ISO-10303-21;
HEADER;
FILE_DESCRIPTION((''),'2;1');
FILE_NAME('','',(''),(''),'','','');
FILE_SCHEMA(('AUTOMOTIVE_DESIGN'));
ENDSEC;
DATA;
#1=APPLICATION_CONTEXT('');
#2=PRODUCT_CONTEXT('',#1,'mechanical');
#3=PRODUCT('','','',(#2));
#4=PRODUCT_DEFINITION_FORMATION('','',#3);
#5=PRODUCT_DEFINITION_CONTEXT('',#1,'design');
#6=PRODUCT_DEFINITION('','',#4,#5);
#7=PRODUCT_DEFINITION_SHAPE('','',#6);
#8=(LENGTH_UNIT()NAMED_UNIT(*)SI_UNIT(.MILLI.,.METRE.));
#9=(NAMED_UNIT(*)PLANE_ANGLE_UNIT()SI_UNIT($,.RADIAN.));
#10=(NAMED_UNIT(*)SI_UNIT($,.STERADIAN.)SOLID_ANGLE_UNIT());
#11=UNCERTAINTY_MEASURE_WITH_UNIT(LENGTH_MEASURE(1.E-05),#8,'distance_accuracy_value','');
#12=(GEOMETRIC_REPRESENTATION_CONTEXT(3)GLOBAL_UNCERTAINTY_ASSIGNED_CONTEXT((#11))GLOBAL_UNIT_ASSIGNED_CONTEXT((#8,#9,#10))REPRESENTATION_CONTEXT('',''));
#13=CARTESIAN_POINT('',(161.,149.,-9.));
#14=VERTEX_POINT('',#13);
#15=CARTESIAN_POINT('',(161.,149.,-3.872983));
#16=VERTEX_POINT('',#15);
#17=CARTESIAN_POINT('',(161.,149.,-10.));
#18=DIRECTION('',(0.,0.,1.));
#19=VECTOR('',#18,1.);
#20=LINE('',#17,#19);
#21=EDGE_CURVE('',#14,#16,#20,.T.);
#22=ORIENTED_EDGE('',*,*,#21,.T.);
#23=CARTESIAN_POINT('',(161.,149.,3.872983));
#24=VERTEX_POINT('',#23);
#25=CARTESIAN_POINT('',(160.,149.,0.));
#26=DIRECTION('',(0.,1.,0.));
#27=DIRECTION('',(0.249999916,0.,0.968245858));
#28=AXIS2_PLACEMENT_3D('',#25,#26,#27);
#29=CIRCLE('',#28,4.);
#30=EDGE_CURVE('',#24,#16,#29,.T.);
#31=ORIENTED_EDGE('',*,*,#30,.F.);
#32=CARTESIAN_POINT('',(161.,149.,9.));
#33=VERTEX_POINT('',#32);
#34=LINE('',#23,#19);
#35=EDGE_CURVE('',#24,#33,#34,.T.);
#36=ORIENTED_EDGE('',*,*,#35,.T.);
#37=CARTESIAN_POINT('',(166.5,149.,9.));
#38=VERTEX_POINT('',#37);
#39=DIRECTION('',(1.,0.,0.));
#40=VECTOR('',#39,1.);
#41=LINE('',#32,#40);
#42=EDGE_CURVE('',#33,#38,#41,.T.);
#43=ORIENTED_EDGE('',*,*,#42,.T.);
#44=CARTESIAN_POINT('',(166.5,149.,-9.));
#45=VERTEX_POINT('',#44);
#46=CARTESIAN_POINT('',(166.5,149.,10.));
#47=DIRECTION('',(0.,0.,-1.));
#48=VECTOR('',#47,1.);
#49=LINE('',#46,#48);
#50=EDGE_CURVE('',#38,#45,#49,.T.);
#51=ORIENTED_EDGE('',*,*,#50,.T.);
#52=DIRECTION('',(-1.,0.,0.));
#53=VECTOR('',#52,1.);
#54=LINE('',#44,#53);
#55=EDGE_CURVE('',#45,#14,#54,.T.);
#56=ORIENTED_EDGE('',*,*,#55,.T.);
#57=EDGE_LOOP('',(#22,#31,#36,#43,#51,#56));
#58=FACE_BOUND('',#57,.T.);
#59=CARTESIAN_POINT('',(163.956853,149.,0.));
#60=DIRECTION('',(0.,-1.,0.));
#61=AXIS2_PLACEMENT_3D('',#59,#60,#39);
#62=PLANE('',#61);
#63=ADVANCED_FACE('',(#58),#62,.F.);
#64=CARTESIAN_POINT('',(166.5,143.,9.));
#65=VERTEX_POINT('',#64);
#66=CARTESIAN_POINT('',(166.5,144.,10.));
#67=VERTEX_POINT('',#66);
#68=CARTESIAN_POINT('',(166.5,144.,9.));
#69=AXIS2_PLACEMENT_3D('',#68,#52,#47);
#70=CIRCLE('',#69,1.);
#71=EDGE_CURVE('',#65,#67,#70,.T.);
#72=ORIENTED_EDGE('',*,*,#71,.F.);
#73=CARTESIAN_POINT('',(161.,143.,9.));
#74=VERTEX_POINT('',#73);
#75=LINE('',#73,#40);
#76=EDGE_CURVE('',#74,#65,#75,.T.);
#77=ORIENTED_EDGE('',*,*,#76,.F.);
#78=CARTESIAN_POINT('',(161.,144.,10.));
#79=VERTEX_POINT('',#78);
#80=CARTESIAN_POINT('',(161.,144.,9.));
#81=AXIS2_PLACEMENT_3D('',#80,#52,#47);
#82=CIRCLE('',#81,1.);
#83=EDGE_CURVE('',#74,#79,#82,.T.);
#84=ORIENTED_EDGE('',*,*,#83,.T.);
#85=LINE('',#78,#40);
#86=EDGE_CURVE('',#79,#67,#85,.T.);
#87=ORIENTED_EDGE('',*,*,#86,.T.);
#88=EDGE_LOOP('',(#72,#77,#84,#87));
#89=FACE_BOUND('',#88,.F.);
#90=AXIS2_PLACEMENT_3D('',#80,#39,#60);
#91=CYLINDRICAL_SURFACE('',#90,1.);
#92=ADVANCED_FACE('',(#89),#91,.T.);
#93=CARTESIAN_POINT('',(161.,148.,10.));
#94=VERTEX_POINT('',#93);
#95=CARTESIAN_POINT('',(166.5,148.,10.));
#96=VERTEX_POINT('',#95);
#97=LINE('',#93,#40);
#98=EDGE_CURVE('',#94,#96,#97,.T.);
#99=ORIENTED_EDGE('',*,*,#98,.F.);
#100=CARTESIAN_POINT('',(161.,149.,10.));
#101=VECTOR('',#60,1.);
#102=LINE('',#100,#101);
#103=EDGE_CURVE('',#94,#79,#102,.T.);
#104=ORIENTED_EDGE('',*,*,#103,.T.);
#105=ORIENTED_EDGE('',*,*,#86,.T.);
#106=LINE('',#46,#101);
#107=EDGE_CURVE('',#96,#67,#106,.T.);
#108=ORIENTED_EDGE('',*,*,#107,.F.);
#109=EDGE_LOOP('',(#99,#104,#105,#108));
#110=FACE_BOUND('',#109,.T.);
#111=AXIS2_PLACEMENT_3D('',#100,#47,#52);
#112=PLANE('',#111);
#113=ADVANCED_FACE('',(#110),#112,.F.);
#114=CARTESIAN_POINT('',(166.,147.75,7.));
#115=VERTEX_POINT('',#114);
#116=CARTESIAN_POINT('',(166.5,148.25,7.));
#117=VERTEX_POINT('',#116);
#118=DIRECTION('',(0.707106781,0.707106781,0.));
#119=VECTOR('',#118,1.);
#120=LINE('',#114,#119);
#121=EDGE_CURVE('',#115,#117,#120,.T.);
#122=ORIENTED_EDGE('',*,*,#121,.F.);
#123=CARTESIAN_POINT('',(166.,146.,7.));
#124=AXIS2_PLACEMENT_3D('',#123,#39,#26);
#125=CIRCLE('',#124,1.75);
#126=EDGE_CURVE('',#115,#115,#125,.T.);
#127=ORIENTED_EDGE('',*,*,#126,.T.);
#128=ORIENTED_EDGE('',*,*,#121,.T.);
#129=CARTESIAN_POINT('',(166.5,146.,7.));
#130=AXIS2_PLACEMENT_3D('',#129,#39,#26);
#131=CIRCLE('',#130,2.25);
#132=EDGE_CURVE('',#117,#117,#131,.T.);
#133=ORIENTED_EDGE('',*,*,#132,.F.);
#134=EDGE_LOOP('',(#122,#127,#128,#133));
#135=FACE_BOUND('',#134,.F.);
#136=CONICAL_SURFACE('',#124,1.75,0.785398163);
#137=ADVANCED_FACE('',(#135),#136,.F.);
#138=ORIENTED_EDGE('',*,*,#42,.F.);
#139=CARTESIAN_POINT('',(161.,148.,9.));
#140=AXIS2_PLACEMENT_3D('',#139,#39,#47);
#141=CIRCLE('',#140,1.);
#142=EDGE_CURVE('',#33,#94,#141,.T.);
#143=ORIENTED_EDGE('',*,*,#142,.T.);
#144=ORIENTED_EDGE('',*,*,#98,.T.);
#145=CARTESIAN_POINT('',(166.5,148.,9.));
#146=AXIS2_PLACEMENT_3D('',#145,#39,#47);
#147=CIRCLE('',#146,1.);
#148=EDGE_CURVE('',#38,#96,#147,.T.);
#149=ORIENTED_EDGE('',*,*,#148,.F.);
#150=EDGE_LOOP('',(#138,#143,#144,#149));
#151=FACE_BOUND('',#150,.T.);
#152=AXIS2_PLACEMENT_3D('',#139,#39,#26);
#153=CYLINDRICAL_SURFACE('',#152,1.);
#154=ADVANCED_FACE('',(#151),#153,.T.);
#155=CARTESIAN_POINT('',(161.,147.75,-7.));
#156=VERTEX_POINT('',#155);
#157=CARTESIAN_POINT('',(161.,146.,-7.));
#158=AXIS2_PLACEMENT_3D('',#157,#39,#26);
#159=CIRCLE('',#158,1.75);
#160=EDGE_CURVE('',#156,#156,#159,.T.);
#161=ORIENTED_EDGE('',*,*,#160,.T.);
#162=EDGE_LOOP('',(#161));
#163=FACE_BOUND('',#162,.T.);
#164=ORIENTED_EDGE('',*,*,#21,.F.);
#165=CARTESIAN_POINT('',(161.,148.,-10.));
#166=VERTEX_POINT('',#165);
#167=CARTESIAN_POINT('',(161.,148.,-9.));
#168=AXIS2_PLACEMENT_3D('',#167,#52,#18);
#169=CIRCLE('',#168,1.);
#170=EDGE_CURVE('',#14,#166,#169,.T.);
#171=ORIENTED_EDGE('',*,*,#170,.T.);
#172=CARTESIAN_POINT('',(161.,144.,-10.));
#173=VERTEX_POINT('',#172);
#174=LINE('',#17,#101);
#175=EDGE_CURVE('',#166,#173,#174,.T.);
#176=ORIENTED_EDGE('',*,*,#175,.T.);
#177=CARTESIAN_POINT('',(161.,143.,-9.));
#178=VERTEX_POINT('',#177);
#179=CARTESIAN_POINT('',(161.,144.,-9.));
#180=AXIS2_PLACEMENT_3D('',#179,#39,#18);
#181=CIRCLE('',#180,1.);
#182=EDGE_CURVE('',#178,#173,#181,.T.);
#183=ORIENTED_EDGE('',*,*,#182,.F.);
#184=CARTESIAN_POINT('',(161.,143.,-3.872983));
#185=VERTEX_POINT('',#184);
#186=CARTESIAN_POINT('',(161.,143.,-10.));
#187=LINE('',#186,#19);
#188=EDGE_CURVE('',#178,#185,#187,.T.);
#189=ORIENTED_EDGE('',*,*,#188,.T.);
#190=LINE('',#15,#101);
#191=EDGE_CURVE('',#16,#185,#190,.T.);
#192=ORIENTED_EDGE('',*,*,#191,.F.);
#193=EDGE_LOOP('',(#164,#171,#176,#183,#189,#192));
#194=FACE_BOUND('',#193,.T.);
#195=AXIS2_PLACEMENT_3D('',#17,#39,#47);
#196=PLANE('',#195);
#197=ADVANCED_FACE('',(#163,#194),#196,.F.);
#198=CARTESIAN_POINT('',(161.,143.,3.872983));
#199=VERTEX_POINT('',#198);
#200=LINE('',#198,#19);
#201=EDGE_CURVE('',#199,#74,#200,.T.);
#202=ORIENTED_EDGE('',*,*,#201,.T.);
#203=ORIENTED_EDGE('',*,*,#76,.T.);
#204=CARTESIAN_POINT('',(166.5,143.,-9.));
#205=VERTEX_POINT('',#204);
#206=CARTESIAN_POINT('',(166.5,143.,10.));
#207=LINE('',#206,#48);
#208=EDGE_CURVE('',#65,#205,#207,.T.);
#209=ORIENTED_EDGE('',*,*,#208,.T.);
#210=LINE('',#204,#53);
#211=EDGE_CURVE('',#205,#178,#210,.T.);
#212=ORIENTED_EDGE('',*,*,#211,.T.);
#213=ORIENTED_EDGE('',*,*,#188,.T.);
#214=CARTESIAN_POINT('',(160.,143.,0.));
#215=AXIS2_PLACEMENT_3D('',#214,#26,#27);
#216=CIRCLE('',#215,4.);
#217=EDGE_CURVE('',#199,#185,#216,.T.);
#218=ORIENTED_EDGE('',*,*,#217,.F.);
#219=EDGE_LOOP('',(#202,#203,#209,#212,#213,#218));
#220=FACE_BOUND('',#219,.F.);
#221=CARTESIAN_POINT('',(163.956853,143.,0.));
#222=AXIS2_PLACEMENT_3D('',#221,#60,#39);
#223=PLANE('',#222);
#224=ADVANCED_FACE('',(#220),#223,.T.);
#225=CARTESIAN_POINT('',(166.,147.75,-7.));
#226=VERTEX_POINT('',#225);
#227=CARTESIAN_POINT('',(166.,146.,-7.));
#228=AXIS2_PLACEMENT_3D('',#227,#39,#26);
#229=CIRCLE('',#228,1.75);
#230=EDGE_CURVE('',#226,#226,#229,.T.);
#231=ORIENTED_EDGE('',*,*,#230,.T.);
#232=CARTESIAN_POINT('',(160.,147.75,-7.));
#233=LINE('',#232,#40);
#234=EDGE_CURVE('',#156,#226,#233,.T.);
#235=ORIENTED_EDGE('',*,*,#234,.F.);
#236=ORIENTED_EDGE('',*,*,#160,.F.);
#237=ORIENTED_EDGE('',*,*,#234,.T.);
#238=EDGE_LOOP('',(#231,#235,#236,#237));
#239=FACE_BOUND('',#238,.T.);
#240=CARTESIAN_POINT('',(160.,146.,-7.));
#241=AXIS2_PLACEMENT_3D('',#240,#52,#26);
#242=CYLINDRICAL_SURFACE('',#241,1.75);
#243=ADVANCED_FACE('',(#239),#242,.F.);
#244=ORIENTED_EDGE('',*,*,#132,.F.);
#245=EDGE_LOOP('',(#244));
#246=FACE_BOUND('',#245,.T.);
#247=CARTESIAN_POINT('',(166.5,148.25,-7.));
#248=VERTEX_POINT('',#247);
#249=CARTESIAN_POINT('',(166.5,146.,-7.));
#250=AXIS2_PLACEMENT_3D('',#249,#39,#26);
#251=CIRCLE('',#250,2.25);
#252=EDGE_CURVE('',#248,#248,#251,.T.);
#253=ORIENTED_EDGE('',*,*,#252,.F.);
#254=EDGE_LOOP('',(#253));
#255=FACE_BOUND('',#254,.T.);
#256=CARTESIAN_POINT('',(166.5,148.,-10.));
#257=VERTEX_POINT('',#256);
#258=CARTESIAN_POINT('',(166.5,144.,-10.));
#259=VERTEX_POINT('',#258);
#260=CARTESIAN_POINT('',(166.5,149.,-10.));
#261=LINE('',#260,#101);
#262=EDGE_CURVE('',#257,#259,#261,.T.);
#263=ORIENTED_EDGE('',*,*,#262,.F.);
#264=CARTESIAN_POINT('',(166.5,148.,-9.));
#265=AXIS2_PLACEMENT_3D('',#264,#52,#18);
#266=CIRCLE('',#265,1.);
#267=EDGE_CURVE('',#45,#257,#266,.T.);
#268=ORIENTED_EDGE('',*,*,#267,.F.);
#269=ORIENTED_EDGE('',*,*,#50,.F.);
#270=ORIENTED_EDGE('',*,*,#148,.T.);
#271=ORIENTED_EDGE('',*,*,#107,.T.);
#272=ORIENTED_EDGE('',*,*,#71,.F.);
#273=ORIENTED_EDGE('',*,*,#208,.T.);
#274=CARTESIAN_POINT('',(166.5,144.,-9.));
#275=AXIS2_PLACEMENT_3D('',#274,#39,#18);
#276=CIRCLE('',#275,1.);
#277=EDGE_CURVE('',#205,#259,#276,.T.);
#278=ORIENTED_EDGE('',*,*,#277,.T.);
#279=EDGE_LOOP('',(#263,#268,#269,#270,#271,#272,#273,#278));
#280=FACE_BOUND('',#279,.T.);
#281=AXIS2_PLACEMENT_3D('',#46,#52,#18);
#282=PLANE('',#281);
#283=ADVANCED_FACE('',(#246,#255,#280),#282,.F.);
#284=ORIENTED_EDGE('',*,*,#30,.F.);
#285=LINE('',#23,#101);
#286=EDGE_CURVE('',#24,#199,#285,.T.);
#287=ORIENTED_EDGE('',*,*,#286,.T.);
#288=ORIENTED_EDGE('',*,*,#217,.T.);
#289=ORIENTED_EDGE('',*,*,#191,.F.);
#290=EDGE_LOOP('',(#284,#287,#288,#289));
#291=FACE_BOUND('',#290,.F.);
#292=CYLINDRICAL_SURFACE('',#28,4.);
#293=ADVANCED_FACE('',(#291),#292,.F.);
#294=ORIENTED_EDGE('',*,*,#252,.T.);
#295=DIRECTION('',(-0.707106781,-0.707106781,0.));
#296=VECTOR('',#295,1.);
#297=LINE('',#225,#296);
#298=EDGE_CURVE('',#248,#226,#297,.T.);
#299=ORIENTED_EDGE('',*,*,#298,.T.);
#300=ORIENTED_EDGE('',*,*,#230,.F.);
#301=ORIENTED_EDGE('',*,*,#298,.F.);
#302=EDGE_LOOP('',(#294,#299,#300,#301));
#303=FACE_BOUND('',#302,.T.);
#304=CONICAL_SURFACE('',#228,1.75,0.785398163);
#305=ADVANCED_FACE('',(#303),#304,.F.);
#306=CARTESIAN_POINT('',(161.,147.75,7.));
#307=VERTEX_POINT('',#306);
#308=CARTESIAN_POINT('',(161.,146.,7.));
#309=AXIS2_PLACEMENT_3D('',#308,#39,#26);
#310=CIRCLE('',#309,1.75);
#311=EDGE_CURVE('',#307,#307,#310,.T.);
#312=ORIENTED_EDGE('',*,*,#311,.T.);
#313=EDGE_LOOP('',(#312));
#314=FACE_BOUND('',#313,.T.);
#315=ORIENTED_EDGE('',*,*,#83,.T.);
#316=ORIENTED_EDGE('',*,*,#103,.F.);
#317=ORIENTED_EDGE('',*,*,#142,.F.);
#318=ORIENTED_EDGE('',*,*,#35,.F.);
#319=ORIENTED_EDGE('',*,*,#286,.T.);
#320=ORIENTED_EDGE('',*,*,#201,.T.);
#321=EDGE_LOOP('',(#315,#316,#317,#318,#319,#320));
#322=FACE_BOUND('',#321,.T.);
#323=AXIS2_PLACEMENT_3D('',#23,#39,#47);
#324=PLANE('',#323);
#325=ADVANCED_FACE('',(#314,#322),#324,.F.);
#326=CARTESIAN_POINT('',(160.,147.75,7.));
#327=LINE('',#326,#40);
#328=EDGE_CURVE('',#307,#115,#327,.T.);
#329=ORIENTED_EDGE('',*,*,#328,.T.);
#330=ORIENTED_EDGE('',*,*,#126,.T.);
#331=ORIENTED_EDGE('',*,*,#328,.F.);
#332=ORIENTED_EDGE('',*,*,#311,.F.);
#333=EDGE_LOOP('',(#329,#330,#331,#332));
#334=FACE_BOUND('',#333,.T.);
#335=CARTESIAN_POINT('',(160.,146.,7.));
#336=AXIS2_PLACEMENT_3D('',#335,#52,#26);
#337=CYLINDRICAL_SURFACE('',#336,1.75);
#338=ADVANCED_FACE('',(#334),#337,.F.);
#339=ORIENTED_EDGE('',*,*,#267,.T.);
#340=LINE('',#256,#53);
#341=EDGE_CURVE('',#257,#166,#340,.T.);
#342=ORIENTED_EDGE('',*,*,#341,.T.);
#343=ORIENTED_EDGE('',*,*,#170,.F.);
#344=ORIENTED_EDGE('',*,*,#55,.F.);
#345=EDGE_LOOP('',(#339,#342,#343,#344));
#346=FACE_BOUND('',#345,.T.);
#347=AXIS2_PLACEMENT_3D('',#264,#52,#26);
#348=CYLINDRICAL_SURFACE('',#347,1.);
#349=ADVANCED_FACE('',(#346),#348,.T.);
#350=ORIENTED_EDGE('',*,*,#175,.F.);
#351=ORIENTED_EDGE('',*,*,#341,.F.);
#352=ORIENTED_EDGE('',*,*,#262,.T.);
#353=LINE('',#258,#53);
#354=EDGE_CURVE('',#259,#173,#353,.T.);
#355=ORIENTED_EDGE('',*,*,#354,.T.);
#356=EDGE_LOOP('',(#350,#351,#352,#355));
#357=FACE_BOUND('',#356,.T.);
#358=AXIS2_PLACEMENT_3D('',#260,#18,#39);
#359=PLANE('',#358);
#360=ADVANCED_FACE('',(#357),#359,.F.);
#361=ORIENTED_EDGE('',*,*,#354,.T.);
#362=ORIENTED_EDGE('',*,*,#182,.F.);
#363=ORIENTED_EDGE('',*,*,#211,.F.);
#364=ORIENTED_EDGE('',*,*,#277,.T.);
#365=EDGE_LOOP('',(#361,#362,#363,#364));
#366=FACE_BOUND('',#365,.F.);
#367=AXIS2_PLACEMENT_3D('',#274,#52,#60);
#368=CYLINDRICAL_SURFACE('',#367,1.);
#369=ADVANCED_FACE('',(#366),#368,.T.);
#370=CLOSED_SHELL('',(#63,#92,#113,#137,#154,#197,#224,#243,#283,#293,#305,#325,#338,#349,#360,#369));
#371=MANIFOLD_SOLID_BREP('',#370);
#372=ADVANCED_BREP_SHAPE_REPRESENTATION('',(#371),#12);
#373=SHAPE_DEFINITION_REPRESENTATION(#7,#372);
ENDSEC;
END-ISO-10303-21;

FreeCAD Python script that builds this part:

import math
import FreeCAD as App
import Part
import Sketcher


def edges_at(feature, points):
    """Names of the edges that pass closest to the given points."""
    edges = feature.Shape.Edges
    near = lambda p: min(range(len(edges)), key=lambda i: edges[i].distToShape(Part.Vertex(*p))[0])
    return sorted({f"Edge{near(p) + 1}" for p in points})

doc = App.newDocument("Part")
body = doc.addObject("PartDesign::Body", "Body")

# Sketch on XZ plane
sketch1 = body.newObject("Sketcher::SketchObject", "Sketch")
sketch1.AttachmentSupport = (doc.getObject("XZ_Plane"), [""])
sketch1.MapMode = "FlatFace"
sketch1.AttachmentOffset = App.Placement(App.Vector(0, 0, 1), App.Rotation())
sketch1.addGeometry([
    Part.LineSegment(App.Vector(-1, 3.872983, 0), App.Vector(-1, 10, 0)),  # 0
    Part.LineSegment(App.Vector(-1, 10, 0), App.Vector(-6.5, 10, 0)),  # 1
    Part.LineSegment(App.Vector(-6.5, 10, 0), App.Vector(-6.5, -10, 0)),  # 2
    Part.LineSegment(App.Vector(-6.5, -10, 0), App.Vector(-1, -10, 0)),  # 3
    Part.LineSegment(App.Vector(-1, -10, 0), App.Vector(-1, -3.872983, 0)),  # 4
    Part.ArcOfCircle(Part.Circle(App.Vector(0, 0, 0), App.Vector(0, 0, 1), 4), math.radians(104.477507), math.radians(255.522493)),  # 5
], False)
sketch1.addConstraint([
    Sketcher.Constraint("Coincident", 0, 2, 1, 1),
    Sketcher.Constraint("Coincident", 1, 2, 2, 1),
    Sketcher.Constraint("Coincident", 2, 2, 3, 1),
    Sketcher.Constraint("Coincident", 3, 2, 4, 1),
    Sketcher.Constraint("Coincident", 4, 2, 5, 2),
    Sketcher.Constraint("Coincident", 5, 1, 0, 1),
    Sketcher.Constraint("Vertical", 0),
    Sketcher.Constraint("Horizontal", 1),
    Sketcher.Constraint("Vertical", 2),
    Sketcher.Constraint("Horizontal", 3),
    Sketcher.Constraint("Vertical", 4),
    Sketcher.Constraint("Coincident", 5, 3, -1, 1),
    Sketcher.Constraint("Symmetric", 0, 2, 3, 2, -1),
    Sketcher.Constraint("Radius", 5, 4.0),
    Sketcher.Constraint("DistanceY", 2, 2, 2, 1, 20.0),
    Sketcher.Constraint("DistanceX", 1, 2, 1, 1, 5.5),
    Sketcher.Constraint("DistanceX", 0, 2, -1, 1, 1.0),
])
pad1 = body.newObject("PartDesign::Pad", "Pad")
pad1.Profile = sketch1
pad1.Length = 6

# Sketch on YZ plane
sketch2 = body.newObject("Sketcher::SketchObject", "Sketch001")
sketch2.AttachmentSupport = (doc.getObject("YZ_Plane"), [""])
sketch2.MapMode = "FlatFace"
sketch2.addGeometry([
    Part.Circle(App.Vector(-4, 7, 0), App.Vector(0, 0, 1), 1.75),
    Part.Circle(App.Vector(-4, -7, 0), App.Vector(0, 0, 1), 1.75),
], False)
sketch2.addConstraint([
    Sketcher.Constraint("Equal", 0, 1),
    Sketcher.Constraint("Symmetric", 0, 3, 1, 3, -1),
    Sketcher.Constraint("Diameter", 0, 3.5),
    Sketcher.Constraint("DistanceX", 0, 3, -1, 1, 4.0),
    Sketcher.Constraint("DistanceY", -1, 1, 0, 3, 7.0),
])
pocket1 = body.newObject("PartDesign::Pocket", "Pocket")
pocket1.Profile = sketch2
pocket1.Type = "ThroughAll"
doc.recompute()

chamfer = body.newObject("PartDesign::Chamfer", "Chamfer")
chamfer.Base = (pocket1, edges_at(pocket1, [(-6.5, -5.75, 7), (-6.5, -5.75, -7)]))
chamfer.Size = 0.5
doc.recompute()

fillet = body.newObject("PartDesign::Fillet", "Fillet")
fillet.Base = (chamfer, edges_at(chamfer, [
    (-3.75, -7, 10),
    (-3.75, -1, 10),
    (-3.75, -1, -10),
    (-3.75, -7, -10),
]))
fillet.Radius = 1
body2 = doc.addObject("PartDesign::Body", "Body001")
doc.recompute()

body.Placement = App.Placement(App.Vector(-160, 150, 0), App.Rotation(App.Vector(0, 0, 1), 0))
boolean = body2.newObject("PartDesign::Boolean", "Boolean")
boolean.Type = "Fuse"
boolean.addObjects([body])
body3 = doc.addObject("PartDesign::Body", "Body002")
doc.recompute()

mirroring = doc.addObject("Part::Mirroring", "Mirroring")
mirroring.Source = body2
mirroring.Base = App.Vector(0, 0, 0)
mirroring.Normal = App.Vector(1, 0, 0)
body3.BaseFeature = mirroring
doc.recompute()
body2.Visibility = False
mirroring.Visibility = False

doc.recompute()
